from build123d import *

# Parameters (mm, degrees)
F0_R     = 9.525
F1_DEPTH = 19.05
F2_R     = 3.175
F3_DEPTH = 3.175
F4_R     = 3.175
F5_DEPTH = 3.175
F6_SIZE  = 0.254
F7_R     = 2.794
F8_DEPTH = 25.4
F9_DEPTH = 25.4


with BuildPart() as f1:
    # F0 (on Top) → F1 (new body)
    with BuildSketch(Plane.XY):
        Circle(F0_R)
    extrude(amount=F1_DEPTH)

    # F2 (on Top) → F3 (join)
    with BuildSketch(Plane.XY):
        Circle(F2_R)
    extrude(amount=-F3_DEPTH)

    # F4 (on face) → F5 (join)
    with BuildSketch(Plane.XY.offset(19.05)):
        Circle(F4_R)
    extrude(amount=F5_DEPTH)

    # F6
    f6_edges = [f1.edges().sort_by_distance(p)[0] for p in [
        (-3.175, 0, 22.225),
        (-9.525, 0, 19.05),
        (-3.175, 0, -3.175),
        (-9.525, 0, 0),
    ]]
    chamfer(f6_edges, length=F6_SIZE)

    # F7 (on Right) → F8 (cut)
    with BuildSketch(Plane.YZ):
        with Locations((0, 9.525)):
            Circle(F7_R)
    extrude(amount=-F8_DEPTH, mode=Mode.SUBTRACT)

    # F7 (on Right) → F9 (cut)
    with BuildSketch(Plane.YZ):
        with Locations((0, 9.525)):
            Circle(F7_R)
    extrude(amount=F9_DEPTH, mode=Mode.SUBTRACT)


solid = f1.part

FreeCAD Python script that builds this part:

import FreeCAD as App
import Part
import Sketcher
from FreeCAD import Vector
Q = App.Units.Quantity


def edges_at(feature, points):
    """Names of the edges that pass closest to the given points."""
    edges = feature.Shape.Edges
    near = lambda p: min(range(len(edges)), key=lambda i: edges[i].distToShape(Part.Vertex(*p))[0])
    return sorted({f"Edge{near(p) + 1}" for p in points})

doc = App.newDocument("Part")
body = doc.addObject("PartDesign::Body", "Body")

# Sketch on XY plane
sketch1 = body.newObject("Sketcher::SketchObject", "Sketch")
sketch1.AttachmentSupport = (doc.getObject("XY_Plane"), [""])
sketch1.MapMode = "FlatFace"
sketch1.addGeometry(Part.Circle(Vector(0, 0, 0), Vector(0, 0, 1), 10), False)
sketch1.addConstraint([
    Sketcher.Constraint("Coincident", 0, 3, -1, 1),
    Sketcher.Constraint("Diameter", 0, Q("0.75 in")),
])
pad1 = body.newObject("PartDesign::Pad", "Pad")
pad1.Profile = sketch1
pad1.Length = Q("0.75 in")

# Sketch on XY plane
sketch2 = body.newObject("Sketcher::SketchObject", "Sketch001")
sketch2.AttachmentSupport = (doc.getObject("XY_Plane"), [""])
sketch2.MapMode = "FlatFace"
sketch2.addGeometry(Part.Circle(Vector(0, 0, 0), Vector(0, 0, 1), 3.2), False)
sketch2.addConstraint([
    Sketcher.Constraint("Coincident", 0, 3, -1, 1),
    Sketcher.Constraint("Diameter", 0, Q("0.25 in")),
])
pad2 = body.newObject("PartDesign::Pad", "Pad001")
pad2.Profile = sketch2
pad2.Length = Q("0.125 in")
pad2.Reversed = True

# Sketch on XY plane
sketch3 = body.newObject("Sketcher::SketchObject", "Sketch002")
sketch3.AttachmentSupport = (doc.getObject("XY_Plane"), [""])
sketch3.MapMode = "FlatFace"
sketch3.AttachmentOffset = App.Placement(Vector(0, 0, 0.75 * 25.4), App.Rotation())
sketch3.addGeometry(Part.Circle(Vector(0, 0, 0), Vector(0, 0, 1), 3.2), False)
sketch3.addConstraint([
    Sketcher.Constraint("Coincident", 0, 3, -1, 1),
    Sketcher.Constraint("Diameter", 0, Q("0.25 in")),
])
pad3 = body.newObject("PartDesign::Pad", "Pad002")
pad3.Profile = sketch3
pad3.Length = Q("0.125 in")
doc.recompute()

chamfer = body.newObject("PartDesign::Chamfer", "Chamfer")
chamfer.Base = (pad3, edges_at(pad3, [
    (-3.175, 0, 22.225),
    (-9.525, 0, 19.05),
    (-3.175, 0, -3.175),
    (-9.525, 0, 0),
]))
chamfer.Size = Q("0.01 in")

# Sketch on YZ plane
sketch4 = body.newObject("Sketcher::SketchObject", "Sketch003")
sketch4.AttachmentSupport = (doc.getObject("YZ_Plane"), [""])
sketch4.MapMode = "FlatFace"
sketch4.addGeometry(Part.Circle(Vector(0, 9.5, 0), Vector(0, 0, 1), 2.8), False)
sketch4.addConstraint([
    Sketcher.Constraint("PointOnObject", 0, 3, -2),
    Sketcher.Constraint("Diameter", 0, Q("0.22 in")),
    Sketcher.Constraint("DistanceY", -1, 1, 0, 3, Q("0.375 in")),
])
pocket1 = body.newObject("PartDesign::Pocket", "Pocket")
pocket1.Profile = sketch4
pocket1.Length = Q("1 in")

# Sketch on YZ plane
sketch5 = body.newObject("Sketcher::SketchObject", "Sketch004")
sketch5.AttachmentSupport = (doc.getObject("YZ_Plane"), [""])
sketch5.MapMode = "FlatFace"
sketch5.addGeometry(Part.Circle(Vector(0, 9.5, 0), Vector(0, 0, 1), 2.8), False)
sketch5.addConstraint([
    Sketcher.Constraint("PointOnObject", 0, 3, -2),
    Sketcher.Constraint("Diameter", 0, Q("0.22 in")),
    Sketcher.Constraint("DistanceY", -1, 1, 0, 3, Q("0.375 in")),
])
pocket2 = body.newObject("PartDesign::Pocket", "Pocket001")
pocket2.Profile = sketch5
pocket2.Length = Q("1 in")
pocket2.Reversed = True

doc.recompute()
